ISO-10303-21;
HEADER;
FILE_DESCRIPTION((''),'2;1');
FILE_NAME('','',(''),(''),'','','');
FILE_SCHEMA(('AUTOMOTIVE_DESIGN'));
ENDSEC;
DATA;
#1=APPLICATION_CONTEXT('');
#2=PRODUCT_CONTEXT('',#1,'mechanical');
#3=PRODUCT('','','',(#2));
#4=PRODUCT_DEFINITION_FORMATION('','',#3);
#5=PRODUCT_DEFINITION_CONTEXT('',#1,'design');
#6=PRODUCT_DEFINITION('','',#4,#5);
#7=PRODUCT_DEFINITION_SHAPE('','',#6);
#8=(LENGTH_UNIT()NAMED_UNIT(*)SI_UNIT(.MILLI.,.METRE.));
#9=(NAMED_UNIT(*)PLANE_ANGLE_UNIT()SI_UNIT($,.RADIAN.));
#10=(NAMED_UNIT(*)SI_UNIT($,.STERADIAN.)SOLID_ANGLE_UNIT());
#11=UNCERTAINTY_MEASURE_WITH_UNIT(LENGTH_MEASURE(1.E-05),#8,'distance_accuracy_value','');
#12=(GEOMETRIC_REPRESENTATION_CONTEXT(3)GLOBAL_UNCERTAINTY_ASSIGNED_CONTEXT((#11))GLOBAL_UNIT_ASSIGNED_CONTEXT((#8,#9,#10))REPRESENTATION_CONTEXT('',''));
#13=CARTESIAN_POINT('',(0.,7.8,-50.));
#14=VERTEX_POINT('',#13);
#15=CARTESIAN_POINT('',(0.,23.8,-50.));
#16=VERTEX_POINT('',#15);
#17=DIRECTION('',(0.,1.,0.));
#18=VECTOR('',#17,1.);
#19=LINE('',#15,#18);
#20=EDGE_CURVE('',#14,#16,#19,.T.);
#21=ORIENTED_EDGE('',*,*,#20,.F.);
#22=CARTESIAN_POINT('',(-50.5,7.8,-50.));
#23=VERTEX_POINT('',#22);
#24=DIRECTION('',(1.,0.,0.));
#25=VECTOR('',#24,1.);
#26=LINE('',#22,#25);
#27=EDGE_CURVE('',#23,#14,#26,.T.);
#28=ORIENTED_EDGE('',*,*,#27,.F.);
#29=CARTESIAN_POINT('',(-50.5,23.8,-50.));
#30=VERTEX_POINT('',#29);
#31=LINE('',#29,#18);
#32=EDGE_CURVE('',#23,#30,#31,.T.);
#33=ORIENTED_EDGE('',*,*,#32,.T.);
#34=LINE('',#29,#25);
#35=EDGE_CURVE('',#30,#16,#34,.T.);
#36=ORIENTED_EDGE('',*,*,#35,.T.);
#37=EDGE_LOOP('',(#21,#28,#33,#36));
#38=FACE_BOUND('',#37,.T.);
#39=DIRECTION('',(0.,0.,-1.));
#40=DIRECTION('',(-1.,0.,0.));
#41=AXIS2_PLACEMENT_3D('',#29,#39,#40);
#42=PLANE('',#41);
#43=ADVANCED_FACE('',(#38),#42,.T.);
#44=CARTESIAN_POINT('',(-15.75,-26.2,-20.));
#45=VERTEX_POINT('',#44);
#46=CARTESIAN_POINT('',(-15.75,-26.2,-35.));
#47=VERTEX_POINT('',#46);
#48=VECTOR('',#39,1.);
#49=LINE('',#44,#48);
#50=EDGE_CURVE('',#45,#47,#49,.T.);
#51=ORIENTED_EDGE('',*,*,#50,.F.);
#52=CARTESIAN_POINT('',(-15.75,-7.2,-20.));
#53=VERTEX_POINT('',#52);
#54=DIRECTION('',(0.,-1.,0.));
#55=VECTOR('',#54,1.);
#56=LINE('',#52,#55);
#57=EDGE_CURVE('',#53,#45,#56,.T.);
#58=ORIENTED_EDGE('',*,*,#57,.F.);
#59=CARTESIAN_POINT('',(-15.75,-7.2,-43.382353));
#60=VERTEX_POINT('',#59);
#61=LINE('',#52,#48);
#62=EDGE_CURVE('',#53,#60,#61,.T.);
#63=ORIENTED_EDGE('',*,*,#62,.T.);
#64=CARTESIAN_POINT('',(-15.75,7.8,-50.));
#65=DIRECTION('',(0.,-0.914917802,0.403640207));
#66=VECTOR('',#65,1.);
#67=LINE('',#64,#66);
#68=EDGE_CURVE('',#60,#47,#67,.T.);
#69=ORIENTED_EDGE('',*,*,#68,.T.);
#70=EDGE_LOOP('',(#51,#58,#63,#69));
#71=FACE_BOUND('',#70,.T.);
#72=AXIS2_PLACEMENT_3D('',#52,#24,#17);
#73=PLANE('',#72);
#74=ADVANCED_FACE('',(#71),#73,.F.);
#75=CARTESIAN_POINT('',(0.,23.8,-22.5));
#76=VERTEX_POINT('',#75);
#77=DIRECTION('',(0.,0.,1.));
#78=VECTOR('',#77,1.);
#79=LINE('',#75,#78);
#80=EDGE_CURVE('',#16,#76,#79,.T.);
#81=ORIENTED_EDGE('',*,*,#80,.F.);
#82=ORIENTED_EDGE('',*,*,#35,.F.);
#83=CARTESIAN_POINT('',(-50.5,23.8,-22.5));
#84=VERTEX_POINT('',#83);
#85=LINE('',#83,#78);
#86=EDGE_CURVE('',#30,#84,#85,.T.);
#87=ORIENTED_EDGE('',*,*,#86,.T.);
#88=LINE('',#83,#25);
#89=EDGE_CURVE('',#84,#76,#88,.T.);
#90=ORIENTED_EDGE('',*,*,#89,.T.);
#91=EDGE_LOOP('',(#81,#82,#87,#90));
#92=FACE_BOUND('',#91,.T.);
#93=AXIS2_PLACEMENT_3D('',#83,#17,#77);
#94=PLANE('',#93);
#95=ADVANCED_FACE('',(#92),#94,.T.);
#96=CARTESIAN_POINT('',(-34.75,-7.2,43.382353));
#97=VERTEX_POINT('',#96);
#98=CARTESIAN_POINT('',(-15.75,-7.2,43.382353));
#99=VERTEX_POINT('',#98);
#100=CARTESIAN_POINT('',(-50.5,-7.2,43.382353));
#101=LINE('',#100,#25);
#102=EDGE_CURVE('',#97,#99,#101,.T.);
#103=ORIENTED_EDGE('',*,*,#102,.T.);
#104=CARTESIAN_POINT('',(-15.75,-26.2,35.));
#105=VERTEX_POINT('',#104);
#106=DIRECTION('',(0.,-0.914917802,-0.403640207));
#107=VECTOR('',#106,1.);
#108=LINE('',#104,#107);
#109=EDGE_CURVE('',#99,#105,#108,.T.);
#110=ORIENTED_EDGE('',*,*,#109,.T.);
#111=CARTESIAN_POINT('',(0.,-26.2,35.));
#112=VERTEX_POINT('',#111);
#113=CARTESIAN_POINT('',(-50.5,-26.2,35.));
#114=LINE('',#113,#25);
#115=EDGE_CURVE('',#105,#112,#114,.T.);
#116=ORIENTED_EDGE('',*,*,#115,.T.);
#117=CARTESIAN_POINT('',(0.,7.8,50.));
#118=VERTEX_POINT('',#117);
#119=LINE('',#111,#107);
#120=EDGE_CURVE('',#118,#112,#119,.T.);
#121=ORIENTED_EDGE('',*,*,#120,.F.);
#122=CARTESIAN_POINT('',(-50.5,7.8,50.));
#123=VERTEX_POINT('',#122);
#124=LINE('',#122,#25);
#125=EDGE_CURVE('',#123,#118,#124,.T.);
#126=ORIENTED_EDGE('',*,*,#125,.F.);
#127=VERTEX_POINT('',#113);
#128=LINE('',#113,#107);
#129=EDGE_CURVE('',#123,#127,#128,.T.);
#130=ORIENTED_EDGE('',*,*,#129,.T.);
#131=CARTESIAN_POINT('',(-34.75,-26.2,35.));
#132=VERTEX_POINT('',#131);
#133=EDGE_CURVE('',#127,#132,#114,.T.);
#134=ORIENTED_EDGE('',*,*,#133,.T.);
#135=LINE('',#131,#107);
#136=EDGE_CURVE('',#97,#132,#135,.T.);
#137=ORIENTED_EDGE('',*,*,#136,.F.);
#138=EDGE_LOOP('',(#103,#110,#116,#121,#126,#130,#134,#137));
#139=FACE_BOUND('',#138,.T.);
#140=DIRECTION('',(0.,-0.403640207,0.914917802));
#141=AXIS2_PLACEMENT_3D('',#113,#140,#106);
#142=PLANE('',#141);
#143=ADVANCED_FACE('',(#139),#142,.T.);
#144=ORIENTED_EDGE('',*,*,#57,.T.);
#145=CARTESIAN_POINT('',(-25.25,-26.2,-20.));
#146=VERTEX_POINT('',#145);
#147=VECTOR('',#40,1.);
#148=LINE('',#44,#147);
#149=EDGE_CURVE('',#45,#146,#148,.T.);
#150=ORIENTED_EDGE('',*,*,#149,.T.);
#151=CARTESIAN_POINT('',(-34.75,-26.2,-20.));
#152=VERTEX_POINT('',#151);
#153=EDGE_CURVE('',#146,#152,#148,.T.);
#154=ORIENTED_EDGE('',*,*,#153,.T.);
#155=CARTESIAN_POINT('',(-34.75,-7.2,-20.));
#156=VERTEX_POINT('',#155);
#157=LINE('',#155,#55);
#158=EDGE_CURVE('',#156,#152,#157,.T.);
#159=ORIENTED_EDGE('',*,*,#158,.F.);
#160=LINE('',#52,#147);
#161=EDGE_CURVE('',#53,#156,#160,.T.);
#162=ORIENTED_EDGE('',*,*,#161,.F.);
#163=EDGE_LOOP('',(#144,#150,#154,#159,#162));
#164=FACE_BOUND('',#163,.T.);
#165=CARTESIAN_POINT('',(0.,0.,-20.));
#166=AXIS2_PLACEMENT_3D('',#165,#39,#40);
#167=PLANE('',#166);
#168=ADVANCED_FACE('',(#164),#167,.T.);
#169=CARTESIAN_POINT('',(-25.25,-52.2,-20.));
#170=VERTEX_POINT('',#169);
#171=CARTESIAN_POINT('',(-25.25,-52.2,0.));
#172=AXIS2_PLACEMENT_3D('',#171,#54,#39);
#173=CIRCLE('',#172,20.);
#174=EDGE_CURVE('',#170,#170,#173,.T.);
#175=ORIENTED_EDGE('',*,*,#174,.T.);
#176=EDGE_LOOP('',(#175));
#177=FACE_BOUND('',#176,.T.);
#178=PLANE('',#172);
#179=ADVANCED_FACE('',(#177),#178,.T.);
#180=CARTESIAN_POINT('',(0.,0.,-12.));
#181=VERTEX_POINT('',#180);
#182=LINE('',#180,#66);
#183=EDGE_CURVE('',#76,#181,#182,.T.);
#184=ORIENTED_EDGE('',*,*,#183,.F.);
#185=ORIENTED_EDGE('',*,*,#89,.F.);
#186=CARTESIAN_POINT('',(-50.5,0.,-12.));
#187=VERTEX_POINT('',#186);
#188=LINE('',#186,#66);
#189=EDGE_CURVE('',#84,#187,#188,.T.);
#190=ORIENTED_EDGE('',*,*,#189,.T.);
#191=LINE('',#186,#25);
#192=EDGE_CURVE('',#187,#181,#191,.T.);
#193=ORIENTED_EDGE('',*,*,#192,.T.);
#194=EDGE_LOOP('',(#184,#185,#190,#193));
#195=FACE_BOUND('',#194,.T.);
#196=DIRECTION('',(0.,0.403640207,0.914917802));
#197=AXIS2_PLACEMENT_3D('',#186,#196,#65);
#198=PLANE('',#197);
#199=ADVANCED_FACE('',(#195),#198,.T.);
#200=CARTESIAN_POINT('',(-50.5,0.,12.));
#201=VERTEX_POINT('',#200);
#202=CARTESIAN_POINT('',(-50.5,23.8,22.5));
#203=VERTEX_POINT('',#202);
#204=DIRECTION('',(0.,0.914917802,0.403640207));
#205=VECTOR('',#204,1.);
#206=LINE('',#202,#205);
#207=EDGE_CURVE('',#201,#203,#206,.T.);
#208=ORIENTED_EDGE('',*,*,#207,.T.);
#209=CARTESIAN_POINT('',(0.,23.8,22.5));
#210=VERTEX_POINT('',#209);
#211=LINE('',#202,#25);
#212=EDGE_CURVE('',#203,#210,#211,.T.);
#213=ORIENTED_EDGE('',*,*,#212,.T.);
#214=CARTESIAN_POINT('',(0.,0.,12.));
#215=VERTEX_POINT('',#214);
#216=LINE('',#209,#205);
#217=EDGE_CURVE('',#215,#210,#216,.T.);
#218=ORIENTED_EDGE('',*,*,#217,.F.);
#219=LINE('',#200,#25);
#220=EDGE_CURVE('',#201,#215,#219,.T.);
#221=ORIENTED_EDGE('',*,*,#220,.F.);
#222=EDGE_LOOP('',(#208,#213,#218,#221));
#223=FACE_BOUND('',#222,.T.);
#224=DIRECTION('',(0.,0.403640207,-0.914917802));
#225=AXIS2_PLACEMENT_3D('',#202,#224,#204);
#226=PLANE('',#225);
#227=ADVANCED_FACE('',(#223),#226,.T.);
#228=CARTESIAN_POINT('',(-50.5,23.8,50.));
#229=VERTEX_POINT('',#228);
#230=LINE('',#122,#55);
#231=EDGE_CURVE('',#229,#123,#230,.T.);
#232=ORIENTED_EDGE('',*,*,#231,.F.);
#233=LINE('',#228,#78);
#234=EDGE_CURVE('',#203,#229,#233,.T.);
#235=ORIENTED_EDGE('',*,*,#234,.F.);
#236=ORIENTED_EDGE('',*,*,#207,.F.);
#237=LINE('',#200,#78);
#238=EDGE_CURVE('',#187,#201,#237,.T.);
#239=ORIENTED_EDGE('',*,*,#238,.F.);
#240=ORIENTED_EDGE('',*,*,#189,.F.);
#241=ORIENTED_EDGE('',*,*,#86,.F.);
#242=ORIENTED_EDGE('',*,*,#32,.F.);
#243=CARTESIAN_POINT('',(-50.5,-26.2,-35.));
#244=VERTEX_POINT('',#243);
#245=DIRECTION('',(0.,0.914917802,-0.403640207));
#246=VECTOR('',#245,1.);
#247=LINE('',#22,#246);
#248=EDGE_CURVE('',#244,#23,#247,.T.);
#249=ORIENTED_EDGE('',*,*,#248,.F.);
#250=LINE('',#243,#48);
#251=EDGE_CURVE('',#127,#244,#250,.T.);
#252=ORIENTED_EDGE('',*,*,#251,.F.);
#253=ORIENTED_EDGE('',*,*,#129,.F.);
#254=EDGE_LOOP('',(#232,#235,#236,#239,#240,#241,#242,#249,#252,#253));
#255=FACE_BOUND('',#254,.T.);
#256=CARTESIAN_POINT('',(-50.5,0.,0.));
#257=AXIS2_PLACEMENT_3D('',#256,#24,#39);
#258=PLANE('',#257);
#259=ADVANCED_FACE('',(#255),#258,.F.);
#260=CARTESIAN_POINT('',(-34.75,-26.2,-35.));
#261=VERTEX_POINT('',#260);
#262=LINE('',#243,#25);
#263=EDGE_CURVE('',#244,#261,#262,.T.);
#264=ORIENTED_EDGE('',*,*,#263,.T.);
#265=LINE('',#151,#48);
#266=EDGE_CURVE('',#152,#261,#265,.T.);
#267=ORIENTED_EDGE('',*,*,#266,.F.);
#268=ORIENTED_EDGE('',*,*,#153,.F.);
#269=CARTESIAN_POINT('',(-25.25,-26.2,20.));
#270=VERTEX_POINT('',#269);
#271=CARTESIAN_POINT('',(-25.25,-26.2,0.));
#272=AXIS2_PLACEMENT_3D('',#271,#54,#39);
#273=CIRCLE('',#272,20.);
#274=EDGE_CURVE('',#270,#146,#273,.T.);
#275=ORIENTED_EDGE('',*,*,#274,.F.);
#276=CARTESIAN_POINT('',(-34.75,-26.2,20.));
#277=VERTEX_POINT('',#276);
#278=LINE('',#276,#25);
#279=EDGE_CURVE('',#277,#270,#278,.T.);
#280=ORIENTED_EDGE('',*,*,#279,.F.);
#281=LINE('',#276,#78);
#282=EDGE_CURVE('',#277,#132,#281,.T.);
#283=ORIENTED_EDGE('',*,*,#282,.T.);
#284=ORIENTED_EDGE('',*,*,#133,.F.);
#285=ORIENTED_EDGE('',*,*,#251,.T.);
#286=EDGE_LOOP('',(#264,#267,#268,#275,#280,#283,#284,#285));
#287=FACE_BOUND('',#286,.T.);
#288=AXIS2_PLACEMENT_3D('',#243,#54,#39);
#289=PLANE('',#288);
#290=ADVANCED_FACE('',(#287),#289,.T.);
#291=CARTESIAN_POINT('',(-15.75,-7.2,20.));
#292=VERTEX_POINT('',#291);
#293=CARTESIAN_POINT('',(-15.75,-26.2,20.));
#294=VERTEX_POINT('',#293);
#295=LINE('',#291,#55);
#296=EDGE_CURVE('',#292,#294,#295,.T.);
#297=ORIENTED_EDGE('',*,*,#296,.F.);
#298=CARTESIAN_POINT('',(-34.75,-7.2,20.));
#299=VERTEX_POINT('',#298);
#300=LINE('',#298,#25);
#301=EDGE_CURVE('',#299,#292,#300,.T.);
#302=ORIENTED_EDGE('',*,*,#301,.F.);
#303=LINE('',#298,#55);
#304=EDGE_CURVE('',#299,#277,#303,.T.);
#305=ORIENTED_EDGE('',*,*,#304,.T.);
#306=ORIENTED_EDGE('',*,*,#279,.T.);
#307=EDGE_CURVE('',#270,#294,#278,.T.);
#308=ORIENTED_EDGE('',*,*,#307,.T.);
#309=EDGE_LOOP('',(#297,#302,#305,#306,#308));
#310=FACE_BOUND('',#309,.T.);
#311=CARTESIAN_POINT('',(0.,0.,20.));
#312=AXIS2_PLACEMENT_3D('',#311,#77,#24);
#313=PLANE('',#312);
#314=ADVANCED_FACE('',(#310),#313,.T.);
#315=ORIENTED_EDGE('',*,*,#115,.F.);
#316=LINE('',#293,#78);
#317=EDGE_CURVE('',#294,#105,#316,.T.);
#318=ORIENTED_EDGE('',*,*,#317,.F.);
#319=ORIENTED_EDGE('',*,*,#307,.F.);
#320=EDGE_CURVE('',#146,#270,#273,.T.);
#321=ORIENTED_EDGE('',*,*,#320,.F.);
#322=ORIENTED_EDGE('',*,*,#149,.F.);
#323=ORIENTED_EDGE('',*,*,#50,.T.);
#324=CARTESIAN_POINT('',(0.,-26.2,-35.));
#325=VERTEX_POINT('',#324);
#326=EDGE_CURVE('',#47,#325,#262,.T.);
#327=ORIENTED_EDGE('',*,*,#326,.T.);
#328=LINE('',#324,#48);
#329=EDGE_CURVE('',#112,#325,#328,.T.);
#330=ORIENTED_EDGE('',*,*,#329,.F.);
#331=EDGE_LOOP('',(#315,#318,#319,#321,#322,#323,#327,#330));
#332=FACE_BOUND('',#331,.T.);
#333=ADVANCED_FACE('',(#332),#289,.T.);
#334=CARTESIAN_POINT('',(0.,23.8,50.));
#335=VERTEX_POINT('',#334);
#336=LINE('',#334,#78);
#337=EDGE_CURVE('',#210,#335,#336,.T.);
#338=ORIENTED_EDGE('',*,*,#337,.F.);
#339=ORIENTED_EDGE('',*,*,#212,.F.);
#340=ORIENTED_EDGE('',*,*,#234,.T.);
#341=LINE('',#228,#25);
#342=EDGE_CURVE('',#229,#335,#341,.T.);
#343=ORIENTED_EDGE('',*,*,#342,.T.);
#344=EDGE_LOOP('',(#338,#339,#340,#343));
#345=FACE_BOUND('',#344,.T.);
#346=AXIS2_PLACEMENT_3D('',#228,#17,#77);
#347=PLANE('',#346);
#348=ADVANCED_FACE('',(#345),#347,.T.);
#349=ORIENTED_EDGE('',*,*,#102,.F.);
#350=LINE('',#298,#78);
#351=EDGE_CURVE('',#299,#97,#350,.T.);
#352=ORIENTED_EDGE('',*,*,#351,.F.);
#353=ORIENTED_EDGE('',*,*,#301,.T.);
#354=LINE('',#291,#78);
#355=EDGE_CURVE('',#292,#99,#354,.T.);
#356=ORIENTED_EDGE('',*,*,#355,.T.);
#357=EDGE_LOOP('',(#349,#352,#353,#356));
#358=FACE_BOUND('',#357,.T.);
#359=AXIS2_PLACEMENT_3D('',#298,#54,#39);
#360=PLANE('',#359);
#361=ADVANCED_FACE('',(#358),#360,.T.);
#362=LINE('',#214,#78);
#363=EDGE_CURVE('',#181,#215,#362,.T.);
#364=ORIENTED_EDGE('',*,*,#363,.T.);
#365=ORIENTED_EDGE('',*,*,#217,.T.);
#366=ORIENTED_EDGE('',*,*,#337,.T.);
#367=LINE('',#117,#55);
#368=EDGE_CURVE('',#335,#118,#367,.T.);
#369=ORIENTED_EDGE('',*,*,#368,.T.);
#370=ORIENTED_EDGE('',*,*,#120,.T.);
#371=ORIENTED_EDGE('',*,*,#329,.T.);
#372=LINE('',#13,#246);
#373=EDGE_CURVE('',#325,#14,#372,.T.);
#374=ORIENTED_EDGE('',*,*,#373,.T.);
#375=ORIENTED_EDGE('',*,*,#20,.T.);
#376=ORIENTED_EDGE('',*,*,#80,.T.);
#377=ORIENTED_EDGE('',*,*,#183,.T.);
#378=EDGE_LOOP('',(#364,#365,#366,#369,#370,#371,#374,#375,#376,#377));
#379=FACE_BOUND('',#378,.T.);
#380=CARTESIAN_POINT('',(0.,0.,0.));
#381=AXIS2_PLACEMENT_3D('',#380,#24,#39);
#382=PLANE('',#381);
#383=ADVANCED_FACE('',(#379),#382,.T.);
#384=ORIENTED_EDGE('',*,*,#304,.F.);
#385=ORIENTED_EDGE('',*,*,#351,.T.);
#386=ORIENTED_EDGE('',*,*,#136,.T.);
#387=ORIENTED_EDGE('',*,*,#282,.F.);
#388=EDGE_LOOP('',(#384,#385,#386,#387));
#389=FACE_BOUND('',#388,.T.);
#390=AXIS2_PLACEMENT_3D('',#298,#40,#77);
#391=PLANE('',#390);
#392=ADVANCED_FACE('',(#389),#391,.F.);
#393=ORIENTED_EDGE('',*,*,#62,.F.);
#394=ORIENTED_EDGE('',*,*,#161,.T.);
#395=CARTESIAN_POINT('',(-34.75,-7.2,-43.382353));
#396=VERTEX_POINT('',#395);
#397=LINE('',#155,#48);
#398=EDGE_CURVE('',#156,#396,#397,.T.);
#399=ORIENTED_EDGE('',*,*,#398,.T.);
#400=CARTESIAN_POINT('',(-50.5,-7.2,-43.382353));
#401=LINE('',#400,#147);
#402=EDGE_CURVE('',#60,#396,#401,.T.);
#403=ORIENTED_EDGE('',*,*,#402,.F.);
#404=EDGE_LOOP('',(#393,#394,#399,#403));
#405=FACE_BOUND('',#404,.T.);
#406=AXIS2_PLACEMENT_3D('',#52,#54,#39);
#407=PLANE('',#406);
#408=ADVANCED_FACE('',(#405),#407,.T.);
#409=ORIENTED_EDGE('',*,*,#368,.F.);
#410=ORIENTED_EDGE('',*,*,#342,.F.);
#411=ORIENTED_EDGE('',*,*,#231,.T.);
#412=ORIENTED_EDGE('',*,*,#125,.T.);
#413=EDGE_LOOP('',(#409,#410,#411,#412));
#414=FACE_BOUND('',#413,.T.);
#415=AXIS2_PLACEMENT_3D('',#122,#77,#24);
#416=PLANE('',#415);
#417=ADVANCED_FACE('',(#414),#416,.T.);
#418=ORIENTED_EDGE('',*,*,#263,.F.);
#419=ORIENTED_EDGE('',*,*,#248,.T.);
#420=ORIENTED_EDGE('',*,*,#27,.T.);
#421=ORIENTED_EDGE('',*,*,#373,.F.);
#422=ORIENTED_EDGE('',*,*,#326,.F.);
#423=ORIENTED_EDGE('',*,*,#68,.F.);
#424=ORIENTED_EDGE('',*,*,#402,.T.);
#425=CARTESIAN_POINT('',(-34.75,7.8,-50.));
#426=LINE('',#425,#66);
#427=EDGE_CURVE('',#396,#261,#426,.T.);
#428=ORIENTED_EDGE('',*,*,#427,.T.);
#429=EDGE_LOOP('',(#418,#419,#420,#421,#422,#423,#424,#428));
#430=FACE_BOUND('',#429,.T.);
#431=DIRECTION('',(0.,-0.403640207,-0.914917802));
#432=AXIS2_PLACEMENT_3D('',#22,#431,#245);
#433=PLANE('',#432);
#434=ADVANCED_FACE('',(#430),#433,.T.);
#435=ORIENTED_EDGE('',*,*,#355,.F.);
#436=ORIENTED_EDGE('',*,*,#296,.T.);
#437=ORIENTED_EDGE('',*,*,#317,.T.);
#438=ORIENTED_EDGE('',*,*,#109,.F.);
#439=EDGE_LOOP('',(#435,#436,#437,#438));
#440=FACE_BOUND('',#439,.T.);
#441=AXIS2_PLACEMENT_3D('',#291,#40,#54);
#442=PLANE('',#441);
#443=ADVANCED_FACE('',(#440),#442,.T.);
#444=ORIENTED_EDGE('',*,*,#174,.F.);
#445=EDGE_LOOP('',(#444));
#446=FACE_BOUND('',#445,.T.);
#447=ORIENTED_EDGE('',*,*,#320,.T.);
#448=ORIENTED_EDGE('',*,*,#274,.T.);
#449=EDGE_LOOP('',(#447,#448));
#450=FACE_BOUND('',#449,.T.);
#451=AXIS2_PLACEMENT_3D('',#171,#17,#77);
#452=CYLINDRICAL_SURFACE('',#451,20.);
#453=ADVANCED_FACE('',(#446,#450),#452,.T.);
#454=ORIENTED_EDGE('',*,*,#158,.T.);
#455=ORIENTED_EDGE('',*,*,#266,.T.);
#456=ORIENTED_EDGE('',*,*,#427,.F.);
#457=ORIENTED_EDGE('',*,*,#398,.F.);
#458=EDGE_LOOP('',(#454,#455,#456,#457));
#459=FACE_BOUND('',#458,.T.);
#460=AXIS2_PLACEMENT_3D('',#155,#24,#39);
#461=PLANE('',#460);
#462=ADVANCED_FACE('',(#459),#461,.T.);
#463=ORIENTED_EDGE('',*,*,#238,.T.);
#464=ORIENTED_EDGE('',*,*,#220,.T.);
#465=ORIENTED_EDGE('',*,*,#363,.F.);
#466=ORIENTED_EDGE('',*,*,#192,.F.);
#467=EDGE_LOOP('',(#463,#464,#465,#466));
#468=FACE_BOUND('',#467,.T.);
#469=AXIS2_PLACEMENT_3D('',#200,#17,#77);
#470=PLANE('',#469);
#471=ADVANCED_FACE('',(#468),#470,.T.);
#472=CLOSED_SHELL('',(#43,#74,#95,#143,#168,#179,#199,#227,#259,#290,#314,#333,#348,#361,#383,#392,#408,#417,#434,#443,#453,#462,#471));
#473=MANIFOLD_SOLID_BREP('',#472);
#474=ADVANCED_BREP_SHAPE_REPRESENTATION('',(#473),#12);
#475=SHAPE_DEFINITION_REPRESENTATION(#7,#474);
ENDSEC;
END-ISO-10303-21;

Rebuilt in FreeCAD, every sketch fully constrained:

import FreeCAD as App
import Part
import Sketcher
from FreeCAD import Vector


def add_polygon(sketch, points):
    """Adds a closed chain of lines whose ends are joined by coincident constraints."""
    first, n = sketch.GeometryCount, len(points)
    for a, b in zip(points, points[1:] + points[:1]):
        sketch.addGeometry(Part.LineSegment(App.Vector(*a, 0), App.Vector(*b, 0)), False)
    for i in range(n):
        sketch.addConstraint(Sketcher.Constraint("Coincident", first + i, 2, first + (i + 1) % n, 1))

doc = App.newDocument("Part")
body = doc.addObject("PartDesign::Body", "Body")

sketch1 = body.newObject("Sketcher::SketchObject", "Sketch")
sketch1.AttachmentSupport = (doc.getObject("YZ_Plane"), [""])
sketch1.MapMode = "FlatFace"
add_polygon(sketch1, [(0, -12), (0, 12), (24, 22), (24, 50), (8, 50), (-26, 35), (-26, -35), (8, -50), (24, -50), (24, -22)])
sketch1.addConstraint(Sketcher.Constraint("Vertical", 0))
sketch1.addConstraint(Sketcher.Constraint("Vertical", 2))
sketch1.addConstraint(Sketcher.Constraint("Horizontal", 3))
sketch1.addConstraint(Sketcher.Constraint("Vertical", 5))
sketch1.addConstraint(Sketcher.Constraint("Horizontal", 7))
sketch1.addConstraint(Sketcher.Constraint("Vertical", 8))
sketch1.addConstraint(Sketcher.Constraint("Symmetric", 0, 2, 9, 2, -1, 1))
sketch1.addConstraint(Sketcher.Constraint("Symmetric", 3, 2, 6, 2, -1))
sketch1.addConstraint(Sketcher.Constraint("Symmetric", 1, 2, 8, 2, -1))
sketch1.addConstraint(Sketcher.Constraint("Parallel", 1, 4))
sketch1.addConstraint(Sketcher.Constraint("Parallel", 6, 9))
sketch1.addConstraint(Sketcher.Constraint("DistanceX", 3, 2, 3, 1, 16.0))
sketch1.addConstraint(Sketcher.Constraint("DistanceY", 0, 1, 0, 2, 24.0))
sketch1.addConstraint(Sketcher.Constraint("DistanceY", 5, 2, 5, 1, 70.0))
sketch1.addConstraint(Sketcher.Constraint("DistanceY", 2, 1, 2, 2, 27.5))
sketch1.addConstraint(Sketcher.Constraint("DistanceY", -1, 1, 2, 2, 50.0))
sketch1.addConstraint(Sketcher.Constraint("DistanceX", 4, 2, 3, 2, 34.0))
pad1 = body.newObject("PartDesign::Pad", "Pad")
pad1.Profile = sketch1
pad1.Length = 50.5
pad1.Reversed = True

sketch2 = body.newObject("Sketcher::SketchObject", "Sketch001")
sketch2.AttachmentSupport = (doc.getObject("XZ_Plane"), [""])
sketch2.MapMode = "FlatFace"
sketch2.AttachmentOffset = App.Placement(Vector(0, 0, 26.2), App.Rotation())
sketch2.addGeometry(Part.Circle(Vector(-25, 0, 0), Vector(0, 0, 1), 20), False)
sketch2.addConstraint(Sketcher.Constraint("PointOnObject", 0, 3, -1))
sketch2.addConstraint(Sketcher.Constraint("Diameter", 0, 40.0))
sketch2.addConstraint(Sketcher.Constraint("DistanceX", 0, 3, -1, 1, 25.25))
pad2 = body.newObject("PartDesign::Pad", "Pad001")
pad2.Profile = sketch2
pad2.Length = 26

sketch3 = body.newObject("Sketcher::SketchObject", "Sketch002")
sketch3.AttachmentSupport = (doc.getObject("XY_Plane"), [""])
sketch3.MapMode = "FlatFace"
sketch3.AttachmentOffset = App.Placement(Vector(0, 0, 50), App.Rotation())
add_polygon(sketch3, [(-35, -7), (-35, -26), (-16, -26), (-16, -7)])
sketch3.addConstraint(Sketcher.Constraint("Vertical", 0))
sketch3.addConstraint(Sketcher.Constraint("Horizontal", 1))
sketch3.addConstraint(Sketcher.Constraint("Vertical", 2))
sketch3.addConstraint(Sketcher.Constraint("Horizontal", 3))
sketch3.addConstraint(Sketcher.Constraint("Equal", 3, 0))
sketch3.addConstraint(Sketcher.Constraint("DistanceX", 1, 1, 1, 2, 19.0))
sketch3.addConstraint(Sketcher.Constraint("DistanceY", 0, 2, -1, 1, 26.2))
sketch3.addConstraint(Sketcher.Constraint("DistanceX", 0, 2, -1, 1, 34.75))
pocket1 = body.newObject("PartDesign::Pocket", "Pocket")
pocket1.Profile = sketch3
pocket1.Length = 30

sketch4 = body.newObject("Sketcher::SketchObject", "Sketch003")
sketch4.AttachmentSupport = (doc.getObject("XY_Plane"), [""])
sketch4.MapMode = "FlatFace"
sketch4.AttachmentOffset = App.Placement(Vector(0, 0, -50), App.Rotation())
add_polygon(sketch4, [(-16, -7), (-16, -26), (-35, -26), (-35, -7)])
sketch4.addConstraint(Sketcher.Constraint("Vertical", 0))
sketch4.addConstraint(Sketcher.Constraint("Horizontal", 1))
sketch4.addConstraint(Sketcher.Constraint("Vertical", 2))
sketch4.addConstraint(Sketcher.Constraint("Horizontal", 3))
sketch4.addConstraint(Sketcher.Constraint("Equal", 3, 0))
sketch4.addConstraint(Sketcher.Constraint("DistanceX", 1, 2, 1, 1, 19.0))
sketch4.addConstraint(Sketcher.Constraint("DistanceY", 0, 2, -1, 1, 26.2))
sketch4.addConstraint(Sketcher.Constraint("DistanceX", 0, 2, -1, 1, 15.75))
pocket2 = body.newObject("PartDesign::Pocket", "Pocket001")
pocket2.Profile = sketch4
pocket2.Length = 30
pocket2.Reversed = True

doc.recompute()
